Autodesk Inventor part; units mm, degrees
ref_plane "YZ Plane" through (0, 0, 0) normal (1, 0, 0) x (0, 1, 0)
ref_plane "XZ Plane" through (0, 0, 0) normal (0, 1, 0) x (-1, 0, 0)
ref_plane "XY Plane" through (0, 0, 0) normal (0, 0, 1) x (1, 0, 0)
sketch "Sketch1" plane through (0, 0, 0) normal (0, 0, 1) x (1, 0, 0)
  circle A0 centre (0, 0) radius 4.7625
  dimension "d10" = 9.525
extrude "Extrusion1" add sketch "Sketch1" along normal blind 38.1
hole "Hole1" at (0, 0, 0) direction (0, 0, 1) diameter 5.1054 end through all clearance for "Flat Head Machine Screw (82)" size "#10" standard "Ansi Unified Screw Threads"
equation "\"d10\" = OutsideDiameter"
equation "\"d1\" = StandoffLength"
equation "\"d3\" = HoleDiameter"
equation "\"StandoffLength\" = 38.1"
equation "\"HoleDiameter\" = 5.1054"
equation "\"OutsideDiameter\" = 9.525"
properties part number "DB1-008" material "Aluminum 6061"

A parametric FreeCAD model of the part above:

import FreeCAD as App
import Part
import Sketcher

V = App.Vector
Q = App.Units.Quantity

doc = App.newDocument("Part")
body = doc.addObject("PartDesign::Body", "Body")

sketch1 = body.newObject("Sketcher::SketchObject", "Sketch")
sketch1.AttachmentSupport = (doc.getObject("XY_Plane"), [""])
sketch1.MapMode = "FlatFace"
sketch1.addGeometry(Part.Circle(V(0, 0, 0), V(0, 0, 1), 4.7625), False)
sketch1.addConstraint([
    Sketcher.Constraint("Coincident", 0, 3, -1, 1),
    Sketcher.Constraint("Diameter", 0, Q("0.375 in")),
])
pad1 = body.newObject("PartDesign::Pad", "Pad")
pad1.Profile = sketch1
pad1.Length = Q("1.5 in")

sketch2 = body.newObject("Sketcher::SketchObject", "Sketch001")
sketch2.AttachmentSupport = (doc.getObject("XY_Plane"), [""])
sketch2.MapMode = "FlatFace"
sketch2.addGeometry(Part.Circle(V(0, 0, 0), V(0, 0, 1), 2.5527), False)
sketch2.addConstraint([
    Sketcher.Constraint("Coincident", 0, 3, -1, 1),
    Sketcher.Constraint("Diameter", 0, Q("0.201 in")),
])
doc.recompute()
hole = body.newObject("PartDesign::Hole", "Hole")
hole.Profile = sketch2
hole.ThreadType = "None"
hole.Diameter = Q("0.201 in")
hole.DepthType = "ThroughAll"
hole.Reversed = True

doc.recompute()
